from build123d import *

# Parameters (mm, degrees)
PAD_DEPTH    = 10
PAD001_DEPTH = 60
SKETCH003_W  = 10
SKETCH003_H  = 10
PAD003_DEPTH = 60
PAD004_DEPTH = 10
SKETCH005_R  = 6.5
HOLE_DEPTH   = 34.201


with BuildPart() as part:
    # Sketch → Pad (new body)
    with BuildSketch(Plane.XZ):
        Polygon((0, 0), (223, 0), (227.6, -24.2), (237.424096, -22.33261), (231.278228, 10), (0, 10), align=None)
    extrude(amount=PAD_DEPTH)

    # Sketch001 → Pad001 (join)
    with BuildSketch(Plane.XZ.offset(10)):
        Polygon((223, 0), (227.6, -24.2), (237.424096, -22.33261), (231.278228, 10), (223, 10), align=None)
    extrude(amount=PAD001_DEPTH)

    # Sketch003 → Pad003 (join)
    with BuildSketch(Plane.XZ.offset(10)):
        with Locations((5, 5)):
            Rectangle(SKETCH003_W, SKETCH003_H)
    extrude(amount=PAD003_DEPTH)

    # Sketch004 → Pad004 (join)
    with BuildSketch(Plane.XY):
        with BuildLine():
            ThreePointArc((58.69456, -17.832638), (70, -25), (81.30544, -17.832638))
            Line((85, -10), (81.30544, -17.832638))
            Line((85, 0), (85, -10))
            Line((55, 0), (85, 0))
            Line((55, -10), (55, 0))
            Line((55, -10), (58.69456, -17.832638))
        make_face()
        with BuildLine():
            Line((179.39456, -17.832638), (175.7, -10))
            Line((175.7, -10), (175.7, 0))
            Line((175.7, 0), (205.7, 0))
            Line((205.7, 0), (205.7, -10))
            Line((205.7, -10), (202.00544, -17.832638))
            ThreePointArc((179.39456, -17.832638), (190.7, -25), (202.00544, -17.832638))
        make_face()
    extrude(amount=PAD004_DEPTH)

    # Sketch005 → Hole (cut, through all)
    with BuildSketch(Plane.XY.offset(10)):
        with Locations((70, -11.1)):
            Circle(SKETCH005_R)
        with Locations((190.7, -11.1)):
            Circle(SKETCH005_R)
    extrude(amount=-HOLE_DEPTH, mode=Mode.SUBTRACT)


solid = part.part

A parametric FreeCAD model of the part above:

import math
import FreeCAD as App
import Part
import Sketcher
Q = App.Units.Quantity


def add_polygon(sketch, points):
    """Adds a closed chain of lines whose ends are joined by coincident constraints."""
    first, n = sketch.GeometryCount, len(points)
    for a, b in zip(points, points[1:] + points[:1]):
        sketch.addGeometry(Part.LineSegment(App.Vector(*a, 0), App.Vector(*b, 0)), False)
    for i in range(n):
        sketch.addConstraint(Sketcher.Constraint("Coincident", first + i, 2, first + (i + 1) % n, 1))

doc = App.newDocument("Part")
body = doc.addObject("PartDesign::Body", "Body")

# Sketch on XZ plane
sketch1 = body.newObject("Sketcher::SketchObject", "Sketch")
sketch1.AttachmentSupport = (doc.getObject("XZ_Plane"), [""])
sketch1.MapMode = "FlatFace"
add_polygon(sketch1, [(0, 0), (223, 0), (228, -24), (237, -22), (231, 10), (0, 10)])  # lines 0-5
sketch1.addConstraint(Sketcher.Constraint("Horizontal", 0))
sketch1.addConstraint(Sketcher.Constraint("Horizontal", 4))
sketch1.addConstraint(Sketcher.Constraint("Vertical", 5))
sketch1.addConstraint(Sketcher.Constraint("Coincident", 5, 2, -1, 1))
sketch1.addConstraint(Sketcher.Constraint("Perpendicular", 1, 2))
sketch1.addConstraint(Sketcher.Constraint("Perpendicular", 2, 3))
sketch1.addConstraint(Sketcher.Constraint("DistanceX", 0, 1, 0, 2, Q("223 mm")))
sketch1.addConstraint(Sketcher.Constraint("DistanceY", 5, 2, 5, 1, Q("10 mm")))
sketch1.addConstraint(Sketcher.Constraint("Distance", 2, Q("10 mm")))
sketch1.addConstraint(Sketcher.Constraint("DistanceX", -1, 1, 1, 2, Q("227.6 mm")))
sketch1.addConstraint(Sketcher.Constraint("DistanceY", 1, 2, -1, 1, Q("24.2 mm")))
pad1 = body.newObject("PartDesign::Pad", "Pad")
pad1.Profile = sketch1
pad1.Length = 10

# Sketch on XZ plane
sketch2 = body.newObject("Sketcher::SketchObject", "Sketch001")
sketch2.AttachmentSupport = (doc.getObject("XZ_Plane"), [""])
sketch2.MapMode = "FlatFace"
sketch2.AttachmentOffset = App.Placement(App.Vector(0, 0, 10), App.Rotation())
add_polygon(sketch2, [(223, 0), (228, -24), (237, -22), (231, 10), (223, 10)])  # lines 0-4
sketch2.addConstraint(Sketcher.Constraint("Horizontal", 3))
sketch2.addConstraint(Sketcher.Constraint("Vertical", 4))
sketch2.addConstraint(Sketcher.Constraint("PointOnObject", 4, 2, -1))
sketch2.addConstraint(Sketcher.Constraint("Perpendicular", 0, 1))
sketch2.addConstraint(Sketcher.Constraint("Perpendicular", 1, 2))
sketch2.addConstraint(Sketcher.Constraint("DistanceY", 4, 2, 4, 1, Q("10 mm")))
sketch2.addConstraint(Sketcher.Constraint("Distance", 1, Q("10 mm")))
sketch2.addConstraint(Sketcher.Constraint("DistanceX", -1, 1, 3, 2, Q("223 mm")))
sketch2.addConstraint(Sketcher.Constraint("DistanceX", -1, 1, 0, 2, Q("227.6 mm")))
sketch2.addConstraint(Sketcher.Constraint("DistanceY", 0, 2, -1, 1, Q("24.2 mm")))
pad2 = body.newObject("PartDesign::Pad", "Pad001")
pad2.Profile = sketch2
pad2.Length = 60

# Sketch on XZ plane
sketch3 = body.newObject("Sketcher::SketchObject", "Sketch002")
sketch3.AttachmentSupport = (doc.getObject("XZ_Plane"), [""])
sketch3.MapMode = "FlatFace"
sketch3.AttachmentOffset = App.Placement(App.Vector(0, 0, 10), App.Rotation())
add_polygon(sketch3, [(0, 10), (0, 0), (10, 0), (10, 10)])  # lines 0-3
sketch3.addConstraint(Sketcher.Constraint("Vertical", 0))
sketch3.addConstraint(Sketcher.Constraint("Horizontal", 1))
sketch3.addConstraint(Sketcher.Constraint("Vertical", 2))
sketch3.addConstraint(Sketcher.Constraint("Horizontal", 3))
sketch3.addConstraint(Sketcher.Constraint("Coincident", 0, 2, -1, 1))
sketch3.addConstraint(Sketcher.Constraint("Equal", 3, 0))
sketch3.addConstraint(Sketcher.Constraint("DistanceX", 1, 1, 1, 2, Q("10 mm")))
pad3 = body.newObject("PartDesign::Pad", "Pad002")
pad3.Profile = sketch3
pad3.Length = 60

# Sketch on XY plane
sketch4 = body.newObject("Sketcher::SketchObject", "Sketch003")
sketch4.AttachmentSupport = (doc.getObject("XY_Plane"), [""])
sketch4.MapMode = "FlatFace"
sketch4.addGeometry(Part.ArcOfCircle(Part.Circle(App.Vector(70, -12, 0), App.Vector(0, 0, 1), 13), math.radians(-155), math.radians(-25)), False)
sketch4.addGeometry(Part.LineSegment(App.Vector(81, -18, 0), App.Vector(85, -10, 0)), False)
sketch4.addGeometry(Part.LineSegment(App.Vector(85, -10, 0), App.Vector(85, 0, 0)), False)
sketch4.addGeometry(Part.LineSegment(App.Vector(85, 0, 0), App.Vector(55, 0, 0)), False)
sketch4.addGeometry(Part.LineSegment(App.Vector(55, 0, 0), App.Vector(55, -10, 0)), False)
sketch4.addGeometry(Part.LineSegment(App.Vector(55, -10, 0), App.Vector(59, -18, 0)), False)
sketch4.addGeometry(Part.LineSegment(App.Vector(176, -10, 0), App.Vector(179, -18, 0)), False)
sketch4.addGeometry(Part.ArcOfCircle(Part.Circle(App.Vector(191, -12, 0), App.Vector(0, 0, 1), 13), math.radians(-155), math.radians(-25)), False)
sketch4.addGeometry(Part.LineSegment(App.Vector(202, -18, 0), App.Vector(206, -10, 0)), False)
sketch4.addGeometry(Part.LineSegment(App.Vector(206, -10, 0), App.Vector(206, 0, 0)), False)
sketch4.addGeometry(Part.LineSegment(App.Vector(206, 0, 0), App.Vector(176, 0, 0)), False)
sketch4.addGeometry(Part.LineSegment(App.Vector(176, 0, 0), App.Vector(176, -10, 0)), False)
sketch4.addConstraint(Sketcher.Constraint("Tangent", 0, 2, 1, 1))
sketch4.addConstraint(Sketcher.Constraint("Coincident", 1, 2, 2, 1))
sketch4.addConstraint(Sketcher.Constraint("Coincident", 2, 2, 3, 1))
sketch4.addConstraint(Sketcher.Constraint("Coincident", 3, 2, 4, 1))
sketch4.addConstraint(Sketcher.Constraint("Coincident", 4, 2, 5, 1))
sketch4.addConstraint(Sketcher.Constraint("Tangent", 5, 2, 0, 1))
sketch4.addConstraint(Sketcher.Constraint("Tangent", 6, 2, 7, 1))
sketch4.addConstraint(Sketcher.Constraint("Tangent", 7, 2, 8, 1))
sketch4.addConstraint(Sketcher.Constraint("Coincident", 8, 2, 9, 1))
sketch4.addConstraint(Sketcher.Constraint("Coincident", 9, 2, 10, 1))
sketch4.addConstraint(Sketcher.Constraint("Coincident", 10, 2, 11, 1))
sketch4.addConstraint(Sketcher.Constraint("Coincident", 11, 2, 6, 1))
sketch4.addConstraint(Sketcher.Constraint("Vertical", 2))
sketch4.addConstraint(Sketcher.Constraint("Horizontal", 3))
sketch4.addConstraint(Sketcher.Constraint("Vertical", 4))
sketch4.addConstraint(Sketcher.Constraint("Vertical", 9))
sketch4.addConstraint(Sketcher.Constraint("Horizontal", 10))
sketch4.addConstraint(Sketcher.Constraint("Vertical", 11))
sketch4.addConstraint(Sketcher.Constraint("Equal", 0, 7))
sketch4.addConstraint(Sketcher.Constraint("PointOnObject", 2, 2, -1))
sketch4.addConstraint(Sketcher.Constraint("PointOnObject", 9, 2, -1))
sketch4.addConstraint(Sketcher.Constraint("Parallel", 5, 6))
sketch4.addConstraint(Sketcher.Constraint("Parallel", 1, 8))
sketch4.addConstraint(Sketcher.Constraint("Horizontal", 0, 3, 7, 3))
sketch4.addConstraint(Sketcher.Constraint("Horizontal", 1, 2, 4, 2))
sketch4.addConstraint(Sketcher.Constraint("Horizontal", 0, 2, 5, 2))
sketch4.addConstraint(Sketcher.Constraint("Horizontal", 4, 2, 8, 2))
sketch4.addConstraint(Sketcher.Constraint("Horizontal", 8, 2, 11, 2))
sketch4.addConstraint(Sketcher.Constraint("Radius", 0, Q("12.5 mm")))
sketch4.addConstraint(Sketcher.Constraint("DistanceX", 3, 2, 3, 1, Q("30 mm")))
sketch4.addConstraint(Sketcher.Constraint("DistanceY", 2, 1, 2, 2, Q("10 mm")))
sketch4.addConstraint(Sketcher.Constraint("DistanceX", -1, 1, 0, 3, Q("70 mm")))
sketch4.addConstraint(Sketcher.Constraint("DistanceY", 0, 3, -1, 1, Q("12.5 mm")))
sketch4.addConstraint(Sketcher.Constraint("DistanceX", -1, 1, 7, 3, Q("190.7 mm")))
pad4 = body.newObject("PartDesign::Pad", "Pad003")
pad4.Profile = sketch4
pad4.Length = 10

# Sketch on XY plane
sketch5 = body.newObject("Sketcher::SketchObject", "Sketch004")
sketch5.AttachmentSupport = (doc.getObject("XY_Plane"), [""])
sketch5.MapMode = "FlatFace"
sketch5.AttachmentOffset = App.Placement(App.Vector(0, 0, 10), App.Rotation())
sketch5.addGeometry(Part.Circle(App.Vector(70, -11, 0), App.Vector(0, 0, 1), 6), False)
sketch5.addGeometry(Part.Circle(App.Vector(191, -11, 0), App.Vector(0, 0, 1), 6), False)
sketch5.addConstraint(Sketcher.Constraint("Equal", 0, 1))
sketch5.addConstraint(Sketcher.Constraint("Horizontal", 0, 3, 1, 3))
sketch5.addConstraint(Sketcher.Constraint("Diameter", 0, Q("13 mm")))
sketch5.addConstraint(Sketcher.Constraint("DistanceX", -1, 1, 0, 3, Q("70 mm")))
sketch5.addConstraint(Sketcher.Constraint("DistanceY", 0, 3, -1, 1, Q("11.1 mm")))
sketch5.addConstraint(Sketcher.Constraint("DistanceX", -1, 1, 1, 3, Q("190.7 mm")))
pocket1 = body.newObject("PartDesign::Pocket", "Pocket")
pocket1.Profile = sketch5
pocket1.Type = "ThroughAll"

doc.recompute()
